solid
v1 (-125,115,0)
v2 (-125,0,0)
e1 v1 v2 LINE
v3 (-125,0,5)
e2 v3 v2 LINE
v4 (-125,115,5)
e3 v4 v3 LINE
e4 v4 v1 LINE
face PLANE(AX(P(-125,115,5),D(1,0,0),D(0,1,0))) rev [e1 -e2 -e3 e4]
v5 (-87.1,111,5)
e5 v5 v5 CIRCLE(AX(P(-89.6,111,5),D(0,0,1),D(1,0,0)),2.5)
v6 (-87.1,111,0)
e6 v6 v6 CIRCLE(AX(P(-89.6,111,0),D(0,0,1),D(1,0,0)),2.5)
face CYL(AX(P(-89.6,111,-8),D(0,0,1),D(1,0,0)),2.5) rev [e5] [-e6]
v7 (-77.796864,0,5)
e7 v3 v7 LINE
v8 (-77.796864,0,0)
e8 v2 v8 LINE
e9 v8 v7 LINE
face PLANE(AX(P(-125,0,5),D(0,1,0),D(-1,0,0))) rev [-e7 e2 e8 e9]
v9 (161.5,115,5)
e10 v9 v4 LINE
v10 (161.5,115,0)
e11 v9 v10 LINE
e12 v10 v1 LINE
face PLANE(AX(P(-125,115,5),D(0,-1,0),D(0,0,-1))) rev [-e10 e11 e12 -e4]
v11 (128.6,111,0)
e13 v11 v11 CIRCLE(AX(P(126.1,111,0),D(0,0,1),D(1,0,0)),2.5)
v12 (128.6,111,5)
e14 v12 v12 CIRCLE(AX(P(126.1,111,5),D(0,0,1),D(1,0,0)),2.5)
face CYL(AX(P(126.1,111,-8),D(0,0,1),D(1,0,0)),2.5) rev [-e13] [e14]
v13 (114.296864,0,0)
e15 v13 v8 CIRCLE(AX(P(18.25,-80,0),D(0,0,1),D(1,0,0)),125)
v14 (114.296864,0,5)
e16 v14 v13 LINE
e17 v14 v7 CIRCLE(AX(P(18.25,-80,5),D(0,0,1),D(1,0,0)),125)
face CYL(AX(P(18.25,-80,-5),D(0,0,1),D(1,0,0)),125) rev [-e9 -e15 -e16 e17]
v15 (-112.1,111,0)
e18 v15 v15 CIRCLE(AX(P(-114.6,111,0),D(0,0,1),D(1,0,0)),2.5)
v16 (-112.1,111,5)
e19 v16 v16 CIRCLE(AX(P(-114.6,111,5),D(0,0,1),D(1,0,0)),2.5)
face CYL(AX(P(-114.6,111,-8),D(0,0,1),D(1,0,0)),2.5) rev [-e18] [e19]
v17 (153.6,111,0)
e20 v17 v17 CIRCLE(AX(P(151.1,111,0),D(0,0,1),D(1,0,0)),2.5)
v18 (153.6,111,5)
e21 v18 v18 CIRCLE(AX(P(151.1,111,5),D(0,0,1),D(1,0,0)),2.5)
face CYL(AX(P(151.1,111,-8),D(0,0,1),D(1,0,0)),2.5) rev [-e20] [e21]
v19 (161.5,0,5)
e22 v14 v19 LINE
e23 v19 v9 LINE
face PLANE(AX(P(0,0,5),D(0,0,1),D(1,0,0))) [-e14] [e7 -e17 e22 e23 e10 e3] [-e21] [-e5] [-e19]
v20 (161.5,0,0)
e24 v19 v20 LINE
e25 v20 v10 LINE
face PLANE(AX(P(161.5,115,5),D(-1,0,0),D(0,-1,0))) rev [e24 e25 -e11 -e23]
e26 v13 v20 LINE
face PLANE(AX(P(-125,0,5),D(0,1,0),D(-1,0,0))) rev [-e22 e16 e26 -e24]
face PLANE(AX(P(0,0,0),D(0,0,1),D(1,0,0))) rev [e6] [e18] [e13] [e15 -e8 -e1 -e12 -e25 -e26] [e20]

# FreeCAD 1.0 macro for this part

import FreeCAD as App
import Part
import Sketcher
from FreeCAD import Vector


def add_polygon(sketch, points):
    """Adds a closed chain of lines whose ends are joined by coincident constraints."""
    first, n = sketch.GeometryCount, len(points)
    for a, b in zip(points, points[1:] + points[:1]):
        sketch.addGeometry(Part.LineSegment(App.Vector(*a, 0), App.Vector(*b, 0)), False)
    for i in range(n):
        sketch.addConstraint(Sketcher.Constraint("Coincident", first + i, 2, first + (i + 1) % n, 1))

doc = App.newDocument("Part")
body = doc.addObject("PartDesign::Body", "Body")

sketch1 = doc.addObject("Sketcher::SketchObject", "Sketch")
body.addObject(sketch1)
sketch1.AttachmentSupport = (doc.XY_Plane, [""])
sketch1.MapMode = "FlatFace"
add_polygon(sketch1, [(-125, 115), (-125, 0), (162, 0), (162, 115)])
sketch1.addConstraint(Sketcher.Constraint("Vertical", 0))
sketch1.addConstraint(Sketcher.Constraint("Horizontal", 1))
sketch1.addConstraint(Sketcher.Constraint("Vertical", 2))
sketch1.addConstraint(Sketcher.Constraint("Horizontal", 3))
sketch1.addConstraint(Sketcher.Constraint("PointOnObject", 0, 2, -1))
sketch1.addConstraint(Sketcher.Constraint("DistanceY", 0, 2, 0, 1, 115.0))
sketch1.addConstraint(Sketcher.Constraint("DistanceX", 1, 1, 1, 2, 286.5))
sketch1.addConstraint(Sketcher.Constraint("DistanceX", 0, 2, -1, 1, 125.0))
pad1 = doc.addObject("PartDesign::Pad", "Pad")
body.addObject(pad1)
pad1.Profile = sketch1
pad1.Length = 5

sketch2 = doc.addObject("Sketcher::SketchObject", "Sketch001")
body.addObject(sketch2)
sketch2.AttachmentSupport = (doc.XY_Plane, [""])
sketch2.MapMode = "FlatFace"
sketch2.AttachmentOffset = App.Placement(Vector(0, 0, 5), App.Rotation())
sketch2.addGeometry(Part.Circle(Vector(151.1, 111, 0), Vector(0, 0, 1), 2.5), False)
sketch2.addGeometry(Part.Circle(Vector(126.1, 111, 0), Vector(0, 0, 1), 2.5), False)
sketch2.addGeometry(Part.Circle(Vector(-114.6, 111, 0), Vector(0, 0, 1), 2.5), False)
sketch2.addGeometry(Part.Circle(Vector(-89.6, 111, 0), Vector(0, 0, 1), 2.5), False)
sketch2.addConstraint(Sketcher.Constraint("Equal", 0, 1))
sketch2.addConstraint(Sketcher.Constraint("Equal", 1, 2))
sketch2.addConstraint(Sketcher.Constraint("Equal", 2, 3))
sketch2.addConstraint(Sketcher.Constraint("Horizontal", 0, 3, 1, 3))
sketch2.addConstraint(Sketcher.Constraint("Horizontal", 1, 3, 2, 3))
sketch2.addConstraint(Sketcher.Constraint("Horizontal", 2, 3, 3, 3))
sketch2.addConstraint(Sketcher.Constraint("Diameter", 0, 5.0))
sketch2.addConstraint(Sketcher.Constraint("DistanceY", -1, 1, 0, 3, 111.0))
sketch2.addConstraint(Sketcher.Constraint("DistanceX", 1, 3, 0, 3, 25.0))
sketch2.addConstraint(Sketcher.Constraint("DistanceX", 2, 3, 3, 3, 25.0))
sketch2.addConstraint(Sketcher.Constraint("DistanceX", -1, 1, 0, 3, 151.1))
sketch2.addConstraint(Sketcher.Constraint("DistanceX", 2, 3, -1, 1, 114.6))
pocket1 = doc.addObject("PartDesign::Pocket", "Pocket")
body.addObject(pocket1)
pocket1.Profile = sketch2
pocket1.Length = 13

sketch3 = doc.addObject("Sketcher::SketchObject", "Sketch002")
body.addObject(sketch3)
sketch3.AttachmentSupport = (doc.XY_Plane, [""])
sketch3.MapMode = "FlatFace"
sketch3.AttachmentOffset = App.Placement(Vector(0, 0, 5), App.Rotation())
sketch3.addGeometry(Part.Circle(Vector(18, -80, 0), Vector(0, 0, 1), 125), False)
sketch3.addConstraint(Sketcher.Constraint("Diameter", 0, 250.0))
sketch3.addConstraint(Sketcher.Constraint("DistanceY", 0, 3, -1, 1, 80.0))
sketch3.addConstraint(Sketcher.Constraint("DistanceX", -1, 1, 0, 3, 18.25))
pocket2 = doc.addObject("PartDesign::Pocket", "Pocket001")
body.addObject(pocket2)
pocket2.Profile = sketch3
pocket2.Length = 10

doc.recompute()
